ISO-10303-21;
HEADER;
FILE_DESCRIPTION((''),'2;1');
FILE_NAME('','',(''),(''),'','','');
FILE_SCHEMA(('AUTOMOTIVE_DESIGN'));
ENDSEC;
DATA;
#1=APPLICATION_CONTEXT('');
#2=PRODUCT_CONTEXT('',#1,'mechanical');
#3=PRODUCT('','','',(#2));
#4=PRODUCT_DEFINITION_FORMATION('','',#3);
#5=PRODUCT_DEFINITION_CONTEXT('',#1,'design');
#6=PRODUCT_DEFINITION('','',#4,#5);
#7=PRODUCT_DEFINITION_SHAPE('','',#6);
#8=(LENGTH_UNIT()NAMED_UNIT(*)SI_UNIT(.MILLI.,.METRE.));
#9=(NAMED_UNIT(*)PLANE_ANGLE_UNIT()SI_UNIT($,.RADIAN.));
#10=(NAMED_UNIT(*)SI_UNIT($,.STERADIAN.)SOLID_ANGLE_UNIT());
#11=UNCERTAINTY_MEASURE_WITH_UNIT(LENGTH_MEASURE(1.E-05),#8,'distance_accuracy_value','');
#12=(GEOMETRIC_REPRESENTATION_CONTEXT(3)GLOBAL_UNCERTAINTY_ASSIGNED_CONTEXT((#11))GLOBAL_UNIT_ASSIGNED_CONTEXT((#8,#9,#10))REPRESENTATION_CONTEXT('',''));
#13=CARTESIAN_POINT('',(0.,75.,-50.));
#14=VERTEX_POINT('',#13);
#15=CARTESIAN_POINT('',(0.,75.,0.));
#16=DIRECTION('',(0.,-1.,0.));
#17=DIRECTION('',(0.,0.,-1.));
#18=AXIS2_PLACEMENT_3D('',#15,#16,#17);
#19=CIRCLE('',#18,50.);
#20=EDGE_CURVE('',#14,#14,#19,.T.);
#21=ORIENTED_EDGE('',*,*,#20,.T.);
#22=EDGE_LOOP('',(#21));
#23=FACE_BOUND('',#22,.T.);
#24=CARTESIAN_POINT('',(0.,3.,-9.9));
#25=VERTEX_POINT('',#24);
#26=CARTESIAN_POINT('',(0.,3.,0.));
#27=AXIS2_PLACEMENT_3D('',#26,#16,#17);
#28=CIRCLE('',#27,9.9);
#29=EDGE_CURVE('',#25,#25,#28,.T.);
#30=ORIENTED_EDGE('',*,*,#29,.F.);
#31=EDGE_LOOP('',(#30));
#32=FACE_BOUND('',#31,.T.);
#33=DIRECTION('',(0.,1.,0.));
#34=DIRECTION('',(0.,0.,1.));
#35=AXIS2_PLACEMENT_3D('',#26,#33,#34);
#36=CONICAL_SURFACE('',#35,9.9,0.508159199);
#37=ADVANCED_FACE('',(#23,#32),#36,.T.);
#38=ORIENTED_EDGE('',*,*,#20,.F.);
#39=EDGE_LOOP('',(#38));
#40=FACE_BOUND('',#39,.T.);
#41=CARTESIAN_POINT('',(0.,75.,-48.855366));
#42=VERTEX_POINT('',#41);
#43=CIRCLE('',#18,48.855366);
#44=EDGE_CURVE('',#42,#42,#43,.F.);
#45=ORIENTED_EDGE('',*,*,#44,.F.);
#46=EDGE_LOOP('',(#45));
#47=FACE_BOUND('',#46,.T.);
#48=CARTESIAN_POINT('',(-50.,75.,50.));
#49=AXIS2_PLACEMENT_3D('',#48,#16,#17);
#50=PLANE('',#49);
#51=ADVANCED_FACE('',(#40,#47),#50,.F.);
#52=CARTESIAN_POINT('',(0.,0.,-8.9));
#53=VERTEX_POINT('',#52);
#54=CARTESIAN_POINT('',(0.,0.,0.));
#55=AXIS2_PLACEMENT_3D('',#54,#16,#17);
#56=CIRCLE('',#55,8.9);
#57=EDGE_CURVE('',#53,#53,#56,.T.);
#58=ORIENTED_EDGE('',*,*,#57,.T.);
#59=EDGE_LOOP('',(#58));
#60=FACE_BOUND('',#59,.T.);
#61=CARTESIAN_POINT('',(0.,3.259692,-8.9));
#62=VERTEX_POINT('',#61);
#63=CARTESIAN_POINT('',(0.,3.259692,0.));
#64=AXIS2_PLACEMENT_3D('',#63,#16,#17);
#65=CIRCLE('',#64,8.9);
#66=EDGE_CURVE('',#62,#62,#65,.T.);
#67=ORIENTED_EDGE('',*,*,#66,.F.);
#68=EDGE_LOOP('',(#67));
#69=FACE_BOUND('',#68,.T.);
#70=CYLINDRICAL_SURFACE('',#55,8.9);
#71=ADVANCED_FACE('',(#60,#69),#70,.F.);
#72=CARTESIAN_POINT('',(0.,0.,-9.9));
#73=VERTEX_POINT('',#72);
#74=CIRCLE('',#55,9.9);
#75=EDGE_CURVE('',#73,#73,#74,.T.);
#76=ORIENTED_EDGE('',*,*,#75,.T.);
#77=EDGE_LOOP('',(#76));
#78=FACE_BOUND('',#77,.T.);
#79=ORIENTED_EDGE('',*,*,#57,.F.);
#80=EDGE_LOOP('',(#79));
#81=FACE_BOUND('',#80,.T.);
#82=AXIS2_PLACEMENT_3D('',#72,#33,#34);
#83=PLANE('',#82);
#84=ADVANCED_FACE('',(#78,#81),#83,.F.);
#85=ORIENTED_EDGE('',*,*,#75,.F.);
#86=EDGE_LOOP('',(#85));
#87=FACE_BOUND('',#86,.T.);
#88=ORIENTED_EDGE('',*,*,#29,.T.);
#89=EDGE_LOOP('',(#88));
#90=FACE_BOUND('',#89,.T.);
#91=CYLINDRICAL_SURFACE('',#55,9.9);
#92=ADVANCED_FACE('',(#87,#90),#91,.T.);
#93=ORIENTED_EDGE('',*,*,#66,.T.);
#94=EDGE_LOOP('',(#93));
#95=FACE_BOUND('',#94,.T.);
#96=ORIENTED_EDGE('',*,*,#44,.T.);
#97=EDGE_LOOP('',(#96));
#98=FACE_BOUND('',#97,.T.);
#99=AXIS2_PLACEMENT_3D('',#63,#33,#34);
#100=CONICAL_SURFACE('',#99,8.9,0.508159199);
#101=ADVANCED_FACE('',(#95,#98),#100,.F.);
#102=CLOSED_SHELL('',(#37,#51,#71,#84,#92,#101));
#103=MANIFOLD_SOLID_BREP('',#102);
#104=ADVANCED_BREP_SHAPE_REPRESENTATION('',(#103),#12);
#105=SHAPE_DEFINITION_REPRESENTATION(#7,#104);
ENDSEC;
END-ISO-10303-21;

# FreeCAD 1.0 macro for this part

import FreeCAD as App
import Part
import Sketcher

V = App.Vector
Q = App.Units.Quantity

doc = App.newDocument("Part")
body = doc.addObject("PartDesign::Body", "Body")

# Sketch on YZ plane
sketch1 = body.newObject("Sketcher::SketchObject", "Sketch")
sketch1.AttachmentSupport = (doc.getObject("YZ_Plane"), [""])
sketch1.MapMode = "FlatFace"
sketch1.addGeometry([
    Part.LineSegment(V(0, -9.9, 0), V(3, -9.9, 0)),  # 0
    Part.LineSegment(V(3, -9.9, 0), V(75, -50, 0)),  # 1
    Part.LineSegment(V(75, -50, 0), V(75.48657, -49.126358, 0)),  # 2
    Part.LineSegment(V(75.48657, -49.126358, 0), V(3.259692, -8.9, 0)),  # 3
    Part.LineSegment(V(3.259692, -8.9, 0), V(0, -8.9, 0)),  # 4
    Part.LineSegment(V(0, -8.9, 0), V(0, -9.9, 0)),  # 5
], False)
sketch1.addConstraint([
    Sketcher.Constraint("Coincident", 0, 2, 1, 1),
    Sketcher.Constraint("Coincident", 1, 2, 2, 1),
    Sketcher.Constraint("Coincident", 2, 2, 3, 1),
    Sketcher.Constraint("Coincident", 3, 2, 4, 1),
    Sketcher.Constraint("Coincident", 4, 2, 5, 1),
    Sketcher.Constraint("Coincident", 5, 2, 0, 1),
    Sketcher.Constraint("Horizontal", 0),
    Sketcher.Constraint("Horizontal", 4),
    Sketcher.Constraint("Vertical", 5),
    Sketcher.Constraint("PointOnObject", 4, 2, -2),
    Sketcher.Constraint("Perpendicular", 1, 2),
    Sketcher.Constraint("Perpendicular", 2, 3),
    Sketcher.Constraint("DistanceX", 0, 1, 0, 2, Q("3 mm")),
    Sketcher.Constraint("DistanceY", 5, 2, 5, 1, Q("1 mm")),
    Sketcher.Constraint("Distance", 2, Q("1 mm")),
    Sketcher.Constraint("DistanceX", -1, 1, 1, 2, Q("75 mm")),
    Sketcher.Constraint("DistanceY", 1, 2, -1, 1, Q("50 mm")),
    Sketcher.Constraint("DistanceY", 0, 2, -1, 1, Q("9.9 mm")),
])
revolution = body.newObject("PartDesign::Revolution", "Revolution")
revolution.Profile = sketch1
revolution.ReferenceAxis = (sketch1, ["H_Axis"])
revolution.Angle = 360

# Sketch on YZ plane
sketch2 = body.newObject("Sketcher::SketchObject", "Sketch001")
sketch2.AttachmentSupport = (doc.getObject("YZ_Plane"), [""])
sketch2.MapMode = "FlatFace"
sketch2.addGeometry([
    Part.LineSegment(V(75.48657, 50, 0), V(75, 50, 0)),
    Part.LineSegment(V(75, 50, 0), V(75, -50, 0)),
    Part.LineSegment(V(75, -50, 0), V(75.48657, -50, 0)),
    Part.LineSegment(V(75.48657, -50, 0), V(75.48657, 50, 0)),
], False)
sketch2.addConstraint([
    Sketcher.Constraint("Coincident", 0, 2, 1, 1),
    Sketcher.Constraint("Coincident", 1, 2, 2, 1),
    Sketcher.Constraint("Coincident", 2, 2, 3, 1),
    Sketcher.Constraint("Coincident", 3, 2, 0, 1),
    Sketcher.Constraint("Horizontal", 0),
    Sketcher.Constraint("Vertical", 1),
    Sketcher.Constraint("Horizontal", 2),
    Sketcher.Constraint("Vertical", 3),
    Sketcher.Constraint("DistanceY", 1, 2, 1, 1, Q("100 mm")),
    Sketcher.Constraint("DistanceX", -1, 1, 0, 2, Q("75 mm")),
    Sketcher.Constraint("DistanceY", -1, 1, 0, 2, Q("50 mm")),
    Sketcher.Constraint("DistanceX", 0, 2, 0, 1, Q("0.48657 mm")),
])
pocket1 = body.newObject("PartDesign::Pocket", "Pocket")
pocket1.Profile = sketch2
pocket1.Type = "ThroughAll"
pocket1.Midplane = True

doc.recompute()
